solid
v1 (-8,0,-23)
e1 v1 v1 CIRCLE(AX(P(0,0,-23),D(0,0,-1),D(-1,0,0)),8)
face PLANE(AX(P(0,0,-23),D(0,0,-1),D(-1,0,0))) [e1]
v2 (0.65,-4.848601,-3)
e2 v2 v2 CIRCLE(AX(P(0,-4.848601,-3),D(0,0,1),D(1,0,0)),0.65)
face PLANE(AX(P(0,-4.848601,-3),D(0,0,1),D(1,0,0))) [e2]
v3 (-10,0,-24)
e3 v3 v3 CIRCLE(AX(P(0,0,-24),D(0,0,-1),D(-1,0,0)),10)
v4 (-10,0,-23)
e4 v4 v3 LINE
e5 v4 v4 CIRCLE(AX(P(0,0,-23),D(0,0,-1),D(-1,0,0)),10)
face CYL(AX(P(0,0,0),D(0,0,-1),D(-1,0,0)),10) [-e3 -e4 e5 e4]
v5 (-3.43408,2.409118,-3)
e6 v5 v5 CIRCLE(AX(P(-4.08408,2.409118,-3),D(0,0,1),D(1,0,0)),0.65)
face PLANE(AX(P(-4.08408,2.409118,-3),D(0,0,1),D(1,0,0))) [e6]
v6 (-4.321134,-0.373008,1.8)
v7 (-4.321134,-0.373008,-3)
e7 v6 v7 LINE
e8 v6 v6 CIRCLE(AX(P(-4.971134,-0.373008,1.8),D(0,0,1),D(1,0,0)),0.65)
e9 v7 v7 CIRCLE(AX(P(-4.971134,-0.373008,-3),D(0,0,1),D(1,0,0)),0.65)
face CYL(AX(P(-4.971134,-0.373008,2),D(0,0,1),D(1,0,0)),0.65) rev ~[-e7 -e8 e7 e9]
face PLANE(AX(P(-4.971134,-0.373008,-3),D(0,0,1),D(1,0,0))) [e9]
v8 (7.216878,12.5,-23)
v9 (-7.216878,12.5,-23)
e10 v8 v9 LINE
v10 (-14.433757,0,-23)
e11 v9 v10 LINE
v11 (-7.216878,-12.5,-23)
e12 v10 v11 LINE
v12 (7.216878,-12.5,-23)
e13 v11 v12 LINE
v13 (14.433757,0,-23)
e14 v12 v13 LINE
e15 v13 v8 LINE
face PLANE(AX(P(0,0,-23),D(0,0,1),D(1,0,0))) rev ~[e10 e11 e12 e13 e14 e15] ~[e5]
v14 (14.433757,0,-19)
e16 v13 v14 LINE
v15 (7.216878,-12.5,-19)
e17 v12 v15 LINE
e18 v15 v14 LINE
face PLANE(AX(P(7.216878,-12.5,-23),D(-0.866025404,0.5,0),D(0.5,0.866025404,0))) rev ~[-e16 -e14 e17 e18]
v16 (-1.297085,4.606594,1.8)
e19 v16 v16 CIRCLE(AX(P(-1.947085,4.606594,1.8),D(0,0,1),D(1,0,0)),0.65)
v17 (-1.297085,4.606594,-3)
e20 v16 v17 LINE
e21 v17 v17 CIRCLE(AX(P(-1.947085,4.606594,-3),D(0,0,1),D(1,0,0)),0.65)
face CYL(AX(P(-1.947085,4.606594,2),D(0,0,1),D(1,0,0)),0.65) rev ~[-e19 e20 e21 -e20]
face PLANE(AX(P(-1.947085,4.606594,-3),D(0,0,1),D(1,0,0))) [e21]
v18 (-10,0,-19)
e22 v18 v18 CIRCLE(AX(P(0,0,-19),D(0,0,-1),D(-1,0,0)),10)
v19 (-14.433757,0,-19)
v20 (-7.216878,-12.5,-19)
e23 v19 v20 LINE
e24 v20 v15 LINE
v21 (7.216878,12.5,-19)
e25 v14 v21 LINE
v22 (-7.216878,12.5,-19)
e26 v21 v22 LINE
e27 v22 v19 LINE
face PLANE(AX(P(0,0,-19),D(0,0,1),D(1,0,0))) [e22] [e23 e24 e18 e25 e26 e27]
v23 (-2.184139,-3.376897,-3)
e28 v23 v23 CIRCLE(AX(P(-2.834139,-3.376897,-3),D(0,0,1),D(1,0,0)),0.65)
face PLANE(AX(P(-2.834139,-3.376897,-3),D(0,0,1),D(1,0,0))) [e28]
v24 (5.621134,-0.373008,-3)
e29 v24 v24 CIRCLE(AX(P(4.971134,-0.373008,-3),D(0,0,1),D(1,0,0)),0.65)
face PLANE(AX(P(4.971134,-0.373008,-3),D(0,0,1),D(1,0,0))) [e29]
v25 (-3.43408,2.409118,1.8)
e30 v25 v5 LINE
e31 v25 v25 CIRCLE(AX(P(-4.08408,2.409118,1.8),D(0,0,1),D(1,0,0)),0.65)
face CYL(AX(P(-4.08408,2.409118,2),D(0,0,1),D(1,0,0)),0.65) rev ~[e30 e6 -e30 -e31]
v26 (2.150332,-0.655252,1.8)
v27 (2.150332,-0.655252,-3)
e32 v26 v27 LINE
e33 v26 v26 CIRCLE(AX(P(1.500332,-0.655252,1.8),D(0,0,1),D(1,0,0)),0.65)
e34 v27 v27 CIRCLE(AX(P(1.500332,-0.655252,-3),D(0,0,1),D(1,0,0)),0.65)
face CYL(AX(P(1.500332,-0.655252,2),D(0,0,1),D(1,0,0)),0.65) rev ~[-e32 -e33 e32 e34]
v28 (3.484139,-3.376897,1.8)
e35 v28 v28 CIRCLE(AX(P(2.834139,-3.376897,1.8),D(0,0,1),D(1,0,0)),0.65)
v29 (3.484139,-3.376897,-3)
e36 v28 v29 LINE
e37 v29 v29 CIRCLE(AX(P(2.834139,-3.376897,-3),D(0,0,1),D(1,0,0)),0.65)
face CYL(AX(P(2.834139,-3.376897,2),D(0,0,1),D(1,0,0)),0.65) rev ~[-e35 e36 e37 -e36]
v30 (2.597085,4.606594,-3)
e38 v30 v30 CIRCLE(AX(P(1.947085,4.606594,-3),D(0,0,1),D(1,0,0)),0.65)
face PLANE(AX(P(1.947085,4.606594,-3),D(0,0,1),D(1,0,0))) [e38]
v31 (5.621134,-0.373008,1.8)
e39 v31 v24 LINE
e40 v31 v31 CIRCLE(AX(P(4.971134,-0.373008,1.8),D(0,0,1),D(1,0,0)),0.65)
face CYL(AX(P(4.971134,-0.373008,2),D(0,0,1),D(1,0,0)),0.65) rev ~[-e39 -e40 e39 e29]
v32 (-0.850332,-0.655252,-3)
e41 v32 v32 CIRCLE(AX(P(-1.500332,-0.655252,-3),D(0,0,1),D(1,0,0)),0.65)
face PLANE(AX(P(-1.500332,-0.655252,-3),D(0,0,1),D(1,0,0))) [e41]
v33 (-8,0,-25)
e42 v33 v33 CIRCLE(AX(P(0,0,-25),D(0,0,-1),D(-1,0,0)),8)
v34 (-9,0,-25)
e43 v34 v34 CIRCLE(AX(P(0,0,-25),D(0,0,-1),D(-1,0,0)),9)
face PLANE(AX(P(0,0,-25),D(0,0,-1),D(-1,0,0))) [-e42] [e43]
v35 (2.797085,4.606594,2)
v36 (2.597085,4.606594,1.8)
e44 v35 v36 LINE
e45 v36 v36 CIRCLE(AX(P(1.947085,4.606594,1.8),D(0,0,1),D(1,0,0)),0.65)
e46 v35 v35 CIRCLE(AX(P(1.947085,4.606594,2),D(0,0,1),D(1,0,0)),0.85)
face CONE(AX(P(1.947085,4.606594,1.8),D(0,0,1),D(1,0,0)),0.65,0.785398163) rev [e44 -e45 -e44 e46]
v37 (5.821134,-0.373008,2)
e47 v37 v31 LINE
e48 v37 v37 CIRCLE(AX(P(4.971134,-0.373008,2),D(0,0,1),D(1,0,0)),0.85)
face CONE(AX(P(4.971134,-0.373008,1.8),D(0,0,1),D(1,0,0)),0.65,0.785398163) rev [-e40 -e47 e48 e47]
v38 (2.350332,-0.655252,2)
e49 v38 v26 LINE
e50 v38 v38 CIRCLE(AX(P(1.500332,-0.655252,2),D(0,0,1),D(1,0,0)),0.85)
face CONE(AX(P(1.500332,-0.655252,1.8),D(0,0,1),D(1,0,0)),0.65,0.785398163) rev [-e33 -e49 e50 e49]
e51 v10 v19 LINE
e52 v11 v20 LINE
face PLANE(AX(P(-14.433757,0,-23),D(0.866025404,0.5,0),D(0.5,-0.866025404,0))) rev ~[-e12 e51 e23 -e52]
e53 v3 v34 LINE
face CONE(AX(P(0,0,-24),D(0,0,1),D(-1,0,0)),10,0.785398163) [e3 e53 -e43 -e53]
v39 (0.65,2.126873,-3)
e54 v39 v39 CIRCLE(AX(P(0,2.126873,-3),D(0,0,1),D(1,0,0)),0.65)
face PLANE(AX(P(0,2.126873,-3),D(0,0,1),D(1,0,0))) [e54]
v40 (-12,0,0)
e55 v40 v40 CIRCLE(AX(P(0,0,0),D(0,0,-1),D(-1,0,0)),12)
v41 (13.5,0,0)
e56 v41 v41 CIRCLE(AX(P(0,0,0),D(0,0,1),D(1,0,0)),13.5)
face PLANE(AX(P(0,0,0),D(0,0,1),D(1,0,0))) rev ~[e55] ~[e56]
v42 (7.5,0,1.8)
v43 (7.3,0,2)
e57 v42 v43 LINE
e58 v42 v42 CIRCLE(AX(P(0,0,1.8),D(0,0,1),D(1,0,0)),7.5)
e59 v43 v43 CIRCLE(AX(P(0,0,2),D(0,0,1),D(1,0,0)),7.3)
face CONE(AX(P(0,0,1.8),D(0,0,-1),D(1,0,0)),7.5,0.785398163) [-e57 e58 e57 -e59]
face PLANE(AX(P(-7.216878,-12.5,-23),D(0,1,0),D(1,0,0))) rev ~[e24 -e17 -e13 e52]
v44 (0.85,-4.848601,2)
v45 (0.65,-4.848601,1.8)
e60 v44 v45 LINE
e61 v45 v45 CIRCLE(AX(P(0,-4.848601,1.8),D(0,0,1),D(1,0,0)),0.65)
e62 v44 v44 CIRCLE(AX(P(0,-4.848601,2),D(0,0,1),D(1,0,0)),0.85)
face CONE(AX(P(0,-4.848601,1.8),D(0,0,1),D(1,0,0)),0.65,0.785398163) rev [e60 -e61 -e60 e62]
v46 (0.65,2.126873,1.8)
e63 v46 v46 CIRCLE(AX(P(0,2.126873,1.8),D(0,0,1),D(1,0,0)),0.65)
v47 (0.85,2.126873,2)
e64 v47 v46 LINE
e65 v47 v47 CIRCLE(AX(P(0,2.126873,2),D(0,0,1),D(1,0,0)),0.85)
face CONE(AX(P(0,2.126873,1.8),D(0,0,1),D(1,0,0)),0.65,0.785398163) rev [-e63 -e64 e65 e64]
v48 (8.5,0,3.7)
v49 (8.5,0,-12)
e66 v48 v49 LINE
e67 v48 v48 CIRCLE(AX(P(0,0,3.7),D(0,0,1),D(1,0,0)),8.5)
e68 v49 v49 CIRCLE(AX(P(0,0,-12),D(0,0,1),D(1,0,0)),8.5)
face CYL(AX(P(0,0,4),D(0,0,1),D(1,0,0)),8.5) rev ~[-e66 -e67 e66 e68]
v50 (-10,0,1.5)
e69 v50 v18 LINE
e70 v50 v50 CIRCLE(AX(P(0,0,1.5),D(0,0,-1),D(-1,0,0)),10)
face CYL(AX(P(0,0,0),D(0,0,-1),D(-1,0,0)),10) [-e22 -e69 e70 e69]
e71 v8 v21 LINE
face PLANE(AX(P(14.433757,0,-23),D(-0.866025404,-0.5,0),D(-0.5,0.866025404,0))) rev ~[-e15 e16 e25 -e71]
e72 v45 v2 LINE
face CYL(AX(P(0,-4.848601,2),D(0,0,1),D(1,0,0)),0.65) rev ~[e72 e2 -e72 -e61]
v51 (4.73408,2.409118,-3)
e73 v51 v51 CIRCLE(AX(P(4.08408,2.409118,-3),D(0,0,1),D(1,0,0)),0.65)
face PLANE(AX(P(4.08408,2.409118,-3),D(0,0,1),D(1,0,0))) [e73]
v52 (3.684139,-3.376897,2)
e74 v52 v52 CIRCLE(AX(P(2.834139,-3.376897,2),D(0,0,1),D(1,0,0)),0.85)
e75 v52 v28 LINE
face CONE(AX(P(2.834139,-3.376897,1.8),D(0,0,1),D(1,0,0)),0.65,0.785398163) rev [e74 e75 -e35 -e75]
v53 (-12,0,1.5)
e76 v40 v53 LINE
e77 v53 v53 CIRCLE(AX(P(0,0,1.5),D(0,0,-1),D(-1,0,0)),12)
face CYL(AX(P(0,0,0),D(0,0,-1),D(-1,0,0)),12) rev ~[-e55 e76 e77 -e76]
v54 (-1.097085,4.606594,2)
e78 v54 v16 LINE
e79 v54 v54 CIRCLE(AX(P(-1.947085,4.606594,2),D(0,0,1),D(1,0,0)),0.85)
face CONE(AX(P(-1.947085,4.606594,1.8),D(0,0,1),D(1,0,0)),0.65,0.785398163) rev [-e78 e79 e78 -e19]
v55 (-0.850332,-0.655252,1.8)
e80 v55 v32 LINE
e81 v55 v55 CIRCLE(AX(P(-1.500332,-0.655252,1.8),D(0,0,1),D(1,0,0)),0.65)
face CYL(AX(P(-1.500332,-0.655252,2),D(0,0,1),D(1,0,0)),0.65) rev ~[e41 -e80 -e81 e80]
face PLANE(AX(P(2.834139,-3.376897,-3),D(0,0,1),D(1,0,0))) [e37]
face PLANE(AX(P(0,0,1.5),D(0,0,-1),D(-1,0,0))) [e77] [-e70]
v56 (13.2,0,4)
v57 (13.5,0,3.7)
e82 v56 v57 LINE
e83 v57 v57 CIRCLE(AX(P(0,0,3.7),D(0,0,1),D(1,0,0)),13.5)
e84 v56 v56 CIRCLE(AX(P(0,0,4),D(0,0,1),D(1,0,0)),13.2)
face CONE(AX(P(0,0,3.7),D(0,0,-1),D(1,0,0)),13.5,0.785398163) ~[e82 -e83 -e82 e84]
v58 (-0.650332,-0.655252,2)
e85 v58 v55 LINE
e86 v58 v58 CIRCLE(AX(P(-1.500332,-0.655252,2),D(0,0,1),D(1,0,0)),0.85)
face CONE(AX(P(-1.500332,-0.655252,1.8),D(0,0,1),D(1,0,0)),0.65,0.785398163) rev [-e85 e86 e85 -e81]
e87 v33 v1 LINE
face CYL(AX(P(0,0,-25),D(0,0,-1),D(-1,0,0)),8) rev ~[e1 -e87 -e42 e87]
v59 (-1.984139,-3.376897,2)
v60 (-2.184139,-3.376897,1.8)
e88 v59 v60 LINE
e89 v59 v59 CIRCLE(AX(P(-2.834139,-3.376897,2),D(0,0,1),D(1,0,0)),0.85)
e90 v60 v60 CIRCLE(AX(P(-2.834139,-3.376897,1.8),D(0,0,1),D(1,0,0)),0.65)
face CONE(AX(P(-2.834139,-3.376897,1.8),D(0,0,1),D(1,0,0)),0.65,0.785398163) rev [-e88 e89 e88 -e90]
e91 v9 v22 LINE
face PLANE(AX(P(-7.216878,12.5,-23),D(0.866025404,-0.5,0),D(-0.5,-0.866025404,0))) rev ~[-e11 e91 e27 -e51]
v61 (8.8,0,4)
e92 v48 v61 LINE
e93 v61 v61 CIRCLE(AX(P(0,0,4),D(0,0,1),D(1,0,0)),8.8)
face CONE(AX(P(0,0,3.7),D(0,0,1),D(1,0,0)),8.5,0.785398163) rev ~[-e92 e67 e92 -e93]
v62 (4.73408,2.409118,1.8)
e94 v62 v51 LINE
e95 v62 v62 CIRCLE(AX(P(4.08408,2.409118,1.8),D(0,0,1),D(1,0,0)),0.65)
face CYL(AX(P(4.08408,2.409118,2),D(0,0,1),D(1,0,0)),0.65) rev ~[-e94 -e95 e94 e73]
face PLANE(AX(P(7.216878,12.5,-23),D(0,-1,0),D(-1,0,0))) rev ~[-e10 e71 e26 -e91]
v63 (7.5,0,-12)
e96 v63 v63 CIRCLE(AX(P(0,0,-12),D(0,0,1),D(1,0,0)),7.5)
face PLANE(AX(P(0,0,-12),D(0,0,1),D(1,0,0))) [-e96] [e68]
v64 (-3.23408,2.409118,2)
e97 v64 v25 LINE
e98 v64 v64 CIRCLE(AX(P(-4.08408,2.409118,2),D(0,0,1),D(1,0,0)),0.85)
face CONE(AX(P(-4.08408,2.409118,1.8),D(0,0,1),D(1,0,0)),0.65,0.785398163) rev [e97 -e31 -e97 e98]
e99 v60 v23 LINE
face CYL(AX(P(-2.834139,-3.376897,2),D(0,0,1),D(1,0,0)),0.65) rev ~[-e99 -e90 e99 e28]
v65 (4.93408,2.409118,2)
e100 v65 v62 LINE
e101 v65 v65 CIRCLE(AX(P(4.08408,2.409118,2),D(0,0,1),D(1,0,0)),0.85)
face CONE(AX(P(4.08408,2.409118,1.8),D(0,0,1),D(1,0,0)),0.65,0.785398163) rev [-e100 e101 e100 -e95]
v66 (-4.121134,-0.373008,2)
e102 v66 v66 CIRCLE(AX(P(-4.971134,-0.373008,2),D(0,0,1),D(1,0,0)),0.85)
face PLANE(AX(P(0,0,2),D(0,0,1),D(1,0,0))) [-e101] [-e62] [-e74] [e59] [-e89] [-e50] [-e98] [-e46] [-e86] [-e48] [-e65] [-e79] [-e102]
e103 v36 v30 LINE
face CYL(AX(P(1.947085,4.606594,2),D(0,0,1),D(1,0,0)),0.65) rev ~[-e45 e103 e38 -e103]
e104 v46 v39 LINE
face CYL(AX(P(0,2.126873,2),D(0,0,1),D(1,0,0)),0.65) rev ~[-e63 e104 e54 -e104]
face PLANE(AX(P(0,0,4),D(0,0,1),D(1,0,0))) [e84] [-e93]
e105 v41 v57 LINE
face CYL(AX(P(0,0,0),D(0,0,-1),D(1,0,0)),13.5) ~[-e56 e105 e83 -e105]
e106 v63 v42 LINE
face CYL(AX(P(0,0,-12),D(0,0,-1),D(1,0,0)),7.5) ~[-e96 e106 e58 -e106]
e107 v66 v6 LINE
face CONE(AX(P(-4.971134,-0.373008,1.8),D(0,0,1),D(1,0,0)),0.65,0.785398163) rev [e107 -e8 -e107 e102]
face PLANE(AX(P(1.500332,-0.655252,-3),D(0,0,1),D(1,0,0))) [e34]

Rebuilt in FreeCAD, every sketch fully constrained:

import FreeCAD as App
import Part
import Sketcher
from FreeCAD import Vector
Q = App.Units.Quantity


def edges_at(feature, points):
    """Names of the edges that pass closest to the given points."""
    edges = feature.Shape.Edges
    near = lambda p: min(range(len(edges)), key=lambda i: edges[i].distToShape(Part.Vertex(*p))[0])
    return sorted({f"Edge{near(p) + 1}" for p in points})


def add_polygon(sketch, points):
    """Adds a closed chain of lines whose ends are joined by coincident constraints."""
    first, n = sketch.GeometryCount, len(points)
    for a, b in zip(points, points[1:] + points[:1]):
        sketch.addGeometry(Part.LineSegment(App.Vector(*a, 0), App.Vector(*b, 0)), False)
    for i in range(n):
        sketch.addConstraint(Sketcher.Constraint("Coincident", first + i, 2, first + (i + 1) % n, 1))

doc = App.newDocument("Part")
params = doc.addObject("Spreadsheet::Sheet", "Params")
for row, (alias, value) in enumerate([
    ("sketch1_diameter", "27 mm"),
    ("pad1_length", "4 mm"),
    ("sketch2_diameter", "20 mm"),
    ("pad2_length", "25 mm"),
    ("sketch3_diameter", "17 mm"),
    ("pocket1_length", "16 mm"),
    ("sketch4_diameter", "15 mm"),
    ("pad3_length", "14 mm"),
    ("chamfer_size", "0.2 mm"),
    ("chamfer2_size", "0.3 mm"),
    ("sketch5_diameter", "24 mm"),
    ("sketch5_diameter2", "20 mm"),
    ("pocket2_length", "1.5 mm"),
    ("sketch6_diameter", "16 mm"),
    ("pocket3_length", "2 mm"),
    ("chamfer3_size", "1 mm"),
    ("sketch7_diameter", "1.3 mm"),
    ("pocket4_length", "5 mm"),
    ("chamfer4_size", "0.2 mm"),
    ("pad4_length", "4 mm"),
], start=1):
    params.set(f"A{row}", alias)
    params.set(f"B{row}", "=" + value)
    params.setAlias(f"B{row}", alias)

body = doc.addObject("PartDesign::Body", "Body")

sketch1 = body.newObject("Sketcher::SketchObject", "Sketch")
sketch1.AttachmentSupport = (doc.getObject("XY_Plane"), [""])
sketch1.MapMode = "FlatFace"
sketch1.addGeometry(Part.Circle(Vector(0, 0, 0), Vector(0, 0, 1), 13.5), False)
sketch1.addConstraint([
    Sketcher.Constraint("Coincident", 0, 3, -1, 1),
    Sketcher.Constraint("Diameter", 0, Q("27 mm")),
])
sketch1.setExpression("Constraints[1]", "Params.sketch1_diameter")
pad1 = body.newObject("PartDesign::Pad", "Pad")
pad1.Profile = sketch1
pad1.setExpression("Length", "Params.pad1_length")

sketch2 = body.newObject("Sketcher::SketchObject", "Sketch001")
sketch2.AttachmentSupport = (doc.getObject("XY_Plane"), [""])
sketch2.MapMode = "FlatFace"
sketch2.addGeometry(Part.Circle(Vector(0, 0, 0), Vector(0, 0, 1), 10), False)
sketch2.addConstraint([
    Sketcher.Constraint("Coincident", 0, 3, -1, 1),
    Sketcher.Constraint("Diameter", 0, Q("20 mm")),
])
sketch2.setExpression("Constraints[1]", "Params.sketch2_diameter")
pad2 = body.newObject("PartDesign::Pad", "Pad001")
pad2.Profile = sketch2
pad2.setExpression("Length", "Params.pad2_length")
pad2.Reversed = True

sketch3 = body.newObject("Sketcher::SketchObject", "Sketch002")
sketch3.AttachmentSupport = (doc.getObject("XY_Plane"), [""])
sketch3.MapMode = "FlatFace"
sketch3.AttachmentOffset = App.Placement(Vector(0, 0, 4), App.Rotation())
sketch3.addGeometry(Part.Circle(Vector(0, 0, 0), Vector(0, 0, 1), 8.5), False)
sketch3.addConstraint([
    Sketcher.Constraint("Coincident", 0, 3, -1, 1),
    Sketcher.Constraint("Diameter", 0, Q("17 mm")),
])
sketch3.setExpression("Constraints[1]", "Params.sketch3_diameter")
pocket1 = body.newObject("PartDesign::Pocket", "Pocket")
pocket1.Profile = sketch3
pocket1.setExpression("Length", "Params.pocket1_length")

sketch4 = body.newObject("Sketcher::SketchObject", "Sketch003")
sketch4.AttachmentSupport = (doc.getObject("XY_Plane"), [""])
sketch4.MapMode = "FlatFace"
sketch4.AttachmentOffset = App.Placement(Vector(0, 0, -12), App.Rotation())
sketch4.addGeometry(Part.Circle(Vector(0, 0, 0), Vector(0, 0, 1), 7.5), False)
sketch4.addConstraint([
    Sketcher.Constraint("Coincident", 0, 3, -1, 1),
    Sketcher.Constraint("Diameter", 0, Q("15 mm")),
])
sketch4.setExpression("Constraints[1]", "Params.sketch4_diameter")
pad3 = body.newObject("PartDesign::Pad", "Pad002")
pad3.Profile = sketch4
pad3.setExpression("Length", "Params.pad3_length")
doc.recompute()

chamfer = body.newObject("PartDesign::Chamfer", "Chamfer")
chamfer.Base = (pad3, edges_at(pad3, [(-7.5, 0, 2)]))
chamfer.setExpression("Size", "Params.chamfer_size")
doc.recompute()

chamfer2 = body.newObject("PartDesign::Chamfer", "Chamfer001")
chamfer2.Base = (chamfer, edges_at(chamfer, [(-8.5, 0, 4), (-13.5, 0, 4)]))
chamfer2.setExpression("Size", "Params.chamfer2_size")

sketch5 = body.newObject("Sketcher::SketchObject", "Sketch004")
sketch5.AttachmentSupport = (doc.getObject("XY_Plane"), [""])
sketch5.MapMode = "FlatFace"
sketch5.addGeometry([
    Part.Circle(Vector(0, 0, 0), Vector(0, 0, 1), 12),
    Part.Circle(Vector(0, 0, 0), Vector(0, 0, 1), 10),
], False)
sketch5.addConstraint([
    Sketcher.Constraint("Coincident", 0, 3, -1, 1),
    Sketcher.Constraint("Coincident", 1, 3, -1, 1),
    Sketcher.Constraint("Diameter", 0, Q("24 mm")),
    Sketcher.Constraint("Diameter", 1, Q("20 mm")),
])
sketch5.setExpression("Constraints[2]", "Params.sketch5_diameter")
sketch5.setExpression("Constraints[3]", "Params.sketch5_diameter2")
pocket2 = body.newObject("PartDesign::Pocket", "Pocket001")
pocket2.Profile = sketch5
pocket2.setExpression("Length", "Params.pocket2_length")
pocket2.Reversed = True

sketch6 = body.newObject("Sketcher::SketchObject", "Sketch005")
sketch6.AttachmentSupport = (doc.getObject("XY_Plane"), [""])
sketch6.MapMode = "FlatFace"
sketch6.AttachmentOffset = App.Placement(Vector(0, 0, -25), App.Rotation())
sketch6.addGeometry(Part.Circle(Vector(0, 0, 0), Vector(0, 0, 1), 8), False)
sketch6.addConstraint([
    Sketcher.Constraint("Coincident", 0, 3, -1, 1),
    Sketcher.Constraint("Diameter", 0, Q("16 mm")),
])
sketch6.setExpression("Constraints[1]", "Params.sketch6_diameter")
pocket3 = body.newObject("PartDesign::Pocket", "Pocket002")
pocket3.Profile = sketch6
pocket3.setExpression("Length", "Params.pocket3_length")
pocket3.Reversed = True
doc.recompute()

chamfer3 = body.newObject("PartDesign::Chamfer", "Chamfer002")
chamfer3.Base = (pocket3, edges_at(pocket3, [(10, 0, -25)]))
chamfer3.setExpression("Size", "Params.chamfer3_size")

sketch7 = body.newObject("Sketcher::SketchObject", "Sketch006")
sketch7.AttachmentSupport = (doc.getObject("XY_Plane"), [""])
sketch7.MapMode = "FlatFace"
sketch7.AttachmentOffset = App.Placement(Vector(0, 0, 2), App.Rotation())
sketch7.addGeometry([
    Part.Circle(Vector(1.500332, -0.655252, 0), Vector(0, 0, 1), 0.65),
    Part.Circle(Vector(0, 2.126873, 0), Vector(0, 0, 1), 0.65),
    Part.Circle(Vector(0, -4.848601, 0), Vector(0, 0, 1), 0.65),
    Part.Circle(Vector(2.834139, -3.376897, 0), Vector(0, 0, 1), 0.65),
    Part.Circle(Vector(1.947085, 4.606594, 0), Vector(0, 0, 1), 0.65),
    Part.Circle(Vector(4.971134, -0.373008, 0), Vector(0, 0, 1), 0.65),
    Part.Circle(Vector(-4.08408, 2.409118, 0), Vector(0, 0, 1), 0.65),
    Part.Circle(Vector(-4.971134, -0.373008, 0), Vector(0, 0, 1), 0.65),
    Part.Circle(Vector(-1.947085, 4.606594, 0), Vector(0, 0, 1), 0.65),
    Part.Circle(Vector(-2.834139, -3.376897, 0), Vector(0, 0, 1), 0.65),
    Part.Circle(Vector(-1.500332, -0.655252, 0), Vector(0, 0, 1), 0.65),
    Part.Circle(Vector(4.08408, 2.409118, 0), Vector(0, 0, 1), 0.65),
], False)
sketch7.addConstraint([
    Sketcher.Constraint("Equal", 0, 1),
    Sketcher.Constraint("Equal", 1, 2),
    Sketcher.Constraint("Equal", 2, 3),
    Sketcher.Constraint("Equal", 3, 4),
    Sketcher.Constraint("Equal", 4, 5),
    Sketcher.Constraint("Equal", 5, 6),
    Sketcher.Constraint("Equal", 6, 7),
    Sketcher.Constraint("Equal", 7, 8),
    Sketcher.Constraint("Equal", 8, 9),
    Sketcher.Constraint("Equal", 9, 10),
    Sketcher.Constraint("Equal", 10, 11),
    Sketcher.Constraint("Symmetric", 5, 3, 7, 3, -2),
    Sketcher.Constraint("Symmetric", 4, 3, 8, 3, -2),
    Sketcher.Constraint("Symmetric", 3, 3, 9, 3, -2),
    Sketcher.Constraint("Symmetric", 0, 3, 10, 3, -2),
    Sketcher.Constraint("Symmetric", 6, 3, 11, 3, -2),
    Sketcher.Constraint("PointOnObject", 1, 3, -2),
    Sketcher.Constraint("PointOnObject", 2, 3, -2),
    Sketcher.Constraint("Diameter", 0, Q("1.3 mm")),
    Sketcher.Constraint("DistanceY", 2, 3, -1, 1, Q("4.848601 mm")),
    Sketcher.Constraint("DistanceY", 5, 3, 4, 3, Q("4.979602 mm")),
    Sketcher.Constraint("DistanceX", -1, 1, 3, 3, Q("2.834139 mm")),
    Sketcher.Constraint("DistanceX", 6, 3, -1, 1, Q("4.08408 mm")),
    Sketcher.Constraint("DistanceY", -1, 1, 6, 3, Q("2.409118 mm")),
    Sketcher.Constraint("DistanceY", 2, 3, 0, 3, Q("4.193349 mm")),
    Sketcher.Constraint("DistanceY", 3, 3, 1, 3, Q("5.503771 mm")),
    Sketcher.Constraint("DistanceY", 1, 3, 4, 3, Q("2.479721 mm")),
    Sketcher.Constraint("DistanceX", 4, 3, 5, 3, Q("3.02405 mm")),
    Sketcher.Constraint("DistanceX", 6, 3, 0, 3, Q("5.584412 mm")),
    Sketcher.Constraint("DistanceX", 8, 3, 4, 3, Q("3.894169 mm")),
    Sketcher.Constraint("DistanceY", -1, 1, 1, 3, Q("2.126873 mm")),
])
sketch7.setExpression("Constraints[18]", "Params.sketch7_diameter")
pocket4 = body.newObject("PartDesign::Pocket", "Pocket003")
pocket4.Profile = sketch7
pocket4.setExpression("Length", "Params.pocket4_length")
doc.recompute()

chamfer4 = body.newObject("PartDesign::Chamfer", "Chamfer003")
chamfer4.Base = (pocket4, edges_at(pocket4, [
    (0.85, -0.655, 2),
    (-0.65, 2.127, 2),
    (-0.65, -4.849, 2),
    (1.297, 4.607, 2),
    (2.184, -3.377, 2),
    (4.321, -0.373, 2),
    (-4.734, 2.409, 2),
    (-5.621, -0.373, 2),
    (-2.597, 4.607, 2),
    (-3.484, -3.377, 2),
    (-2.15, -0.655, 2),
    (3.434, 2.409, 2),
]))
chamfer4.setExpression("Size", "Params.chamfer4_size")

sketch8 = body.newObject("Sketcher::SketchObject", "Sketch007")
sketch8.AttachmentSupport = (doc.getObject("XY_Plane"), [""])
sketch8.MapMode = "FlatFace"
sketch8.AttachmentOffset = App.Placement(Vector(0, 0, -23), App.Rotation())
add_polygon(sketch8, [(-7.216878, 12.5), (7.216878, 12.5), (14.433757, 0), (7.216878, -12.5), (-7.216878, -12.5), (-14.433757, 0)])
sketch8.addConstraint([
    Sketcher.Constraint("Horizontal", 0),
    Sketcher.Constraint("Horizontal", 3),
    Sketcher.Constraint("Symmetric", 0, 2, 3, 2, -1, 1),
    Sketcher.Constraint("Symmetric", 1, 2, 4, 2, -1, 1),
    Sketcher.Constraint("PointOnObject", 1, 2, -1),
    Sketcher.Constraint("Parallel", 2, 5),
    Sketcher.Constraint("Vertical", 0, 2, 2, 2),
    Sketcher.Constraint("Angle", 1, Q("-60 deg")),
    Sketcher.Constraint("DistanceY", 2, 2, 0, 2, Q("25 mm")),
    Sketcher.Constraint("DistanceX", 0, 1, 0, 2, Q("14.433757 mm")),
])
pad4 = body.newObject("PartDesign::Pad", "Pad003")
pad4.Profile = sketch8
pad4.setExpression("Length", "Params.pad4_length")

doc.recompute()
